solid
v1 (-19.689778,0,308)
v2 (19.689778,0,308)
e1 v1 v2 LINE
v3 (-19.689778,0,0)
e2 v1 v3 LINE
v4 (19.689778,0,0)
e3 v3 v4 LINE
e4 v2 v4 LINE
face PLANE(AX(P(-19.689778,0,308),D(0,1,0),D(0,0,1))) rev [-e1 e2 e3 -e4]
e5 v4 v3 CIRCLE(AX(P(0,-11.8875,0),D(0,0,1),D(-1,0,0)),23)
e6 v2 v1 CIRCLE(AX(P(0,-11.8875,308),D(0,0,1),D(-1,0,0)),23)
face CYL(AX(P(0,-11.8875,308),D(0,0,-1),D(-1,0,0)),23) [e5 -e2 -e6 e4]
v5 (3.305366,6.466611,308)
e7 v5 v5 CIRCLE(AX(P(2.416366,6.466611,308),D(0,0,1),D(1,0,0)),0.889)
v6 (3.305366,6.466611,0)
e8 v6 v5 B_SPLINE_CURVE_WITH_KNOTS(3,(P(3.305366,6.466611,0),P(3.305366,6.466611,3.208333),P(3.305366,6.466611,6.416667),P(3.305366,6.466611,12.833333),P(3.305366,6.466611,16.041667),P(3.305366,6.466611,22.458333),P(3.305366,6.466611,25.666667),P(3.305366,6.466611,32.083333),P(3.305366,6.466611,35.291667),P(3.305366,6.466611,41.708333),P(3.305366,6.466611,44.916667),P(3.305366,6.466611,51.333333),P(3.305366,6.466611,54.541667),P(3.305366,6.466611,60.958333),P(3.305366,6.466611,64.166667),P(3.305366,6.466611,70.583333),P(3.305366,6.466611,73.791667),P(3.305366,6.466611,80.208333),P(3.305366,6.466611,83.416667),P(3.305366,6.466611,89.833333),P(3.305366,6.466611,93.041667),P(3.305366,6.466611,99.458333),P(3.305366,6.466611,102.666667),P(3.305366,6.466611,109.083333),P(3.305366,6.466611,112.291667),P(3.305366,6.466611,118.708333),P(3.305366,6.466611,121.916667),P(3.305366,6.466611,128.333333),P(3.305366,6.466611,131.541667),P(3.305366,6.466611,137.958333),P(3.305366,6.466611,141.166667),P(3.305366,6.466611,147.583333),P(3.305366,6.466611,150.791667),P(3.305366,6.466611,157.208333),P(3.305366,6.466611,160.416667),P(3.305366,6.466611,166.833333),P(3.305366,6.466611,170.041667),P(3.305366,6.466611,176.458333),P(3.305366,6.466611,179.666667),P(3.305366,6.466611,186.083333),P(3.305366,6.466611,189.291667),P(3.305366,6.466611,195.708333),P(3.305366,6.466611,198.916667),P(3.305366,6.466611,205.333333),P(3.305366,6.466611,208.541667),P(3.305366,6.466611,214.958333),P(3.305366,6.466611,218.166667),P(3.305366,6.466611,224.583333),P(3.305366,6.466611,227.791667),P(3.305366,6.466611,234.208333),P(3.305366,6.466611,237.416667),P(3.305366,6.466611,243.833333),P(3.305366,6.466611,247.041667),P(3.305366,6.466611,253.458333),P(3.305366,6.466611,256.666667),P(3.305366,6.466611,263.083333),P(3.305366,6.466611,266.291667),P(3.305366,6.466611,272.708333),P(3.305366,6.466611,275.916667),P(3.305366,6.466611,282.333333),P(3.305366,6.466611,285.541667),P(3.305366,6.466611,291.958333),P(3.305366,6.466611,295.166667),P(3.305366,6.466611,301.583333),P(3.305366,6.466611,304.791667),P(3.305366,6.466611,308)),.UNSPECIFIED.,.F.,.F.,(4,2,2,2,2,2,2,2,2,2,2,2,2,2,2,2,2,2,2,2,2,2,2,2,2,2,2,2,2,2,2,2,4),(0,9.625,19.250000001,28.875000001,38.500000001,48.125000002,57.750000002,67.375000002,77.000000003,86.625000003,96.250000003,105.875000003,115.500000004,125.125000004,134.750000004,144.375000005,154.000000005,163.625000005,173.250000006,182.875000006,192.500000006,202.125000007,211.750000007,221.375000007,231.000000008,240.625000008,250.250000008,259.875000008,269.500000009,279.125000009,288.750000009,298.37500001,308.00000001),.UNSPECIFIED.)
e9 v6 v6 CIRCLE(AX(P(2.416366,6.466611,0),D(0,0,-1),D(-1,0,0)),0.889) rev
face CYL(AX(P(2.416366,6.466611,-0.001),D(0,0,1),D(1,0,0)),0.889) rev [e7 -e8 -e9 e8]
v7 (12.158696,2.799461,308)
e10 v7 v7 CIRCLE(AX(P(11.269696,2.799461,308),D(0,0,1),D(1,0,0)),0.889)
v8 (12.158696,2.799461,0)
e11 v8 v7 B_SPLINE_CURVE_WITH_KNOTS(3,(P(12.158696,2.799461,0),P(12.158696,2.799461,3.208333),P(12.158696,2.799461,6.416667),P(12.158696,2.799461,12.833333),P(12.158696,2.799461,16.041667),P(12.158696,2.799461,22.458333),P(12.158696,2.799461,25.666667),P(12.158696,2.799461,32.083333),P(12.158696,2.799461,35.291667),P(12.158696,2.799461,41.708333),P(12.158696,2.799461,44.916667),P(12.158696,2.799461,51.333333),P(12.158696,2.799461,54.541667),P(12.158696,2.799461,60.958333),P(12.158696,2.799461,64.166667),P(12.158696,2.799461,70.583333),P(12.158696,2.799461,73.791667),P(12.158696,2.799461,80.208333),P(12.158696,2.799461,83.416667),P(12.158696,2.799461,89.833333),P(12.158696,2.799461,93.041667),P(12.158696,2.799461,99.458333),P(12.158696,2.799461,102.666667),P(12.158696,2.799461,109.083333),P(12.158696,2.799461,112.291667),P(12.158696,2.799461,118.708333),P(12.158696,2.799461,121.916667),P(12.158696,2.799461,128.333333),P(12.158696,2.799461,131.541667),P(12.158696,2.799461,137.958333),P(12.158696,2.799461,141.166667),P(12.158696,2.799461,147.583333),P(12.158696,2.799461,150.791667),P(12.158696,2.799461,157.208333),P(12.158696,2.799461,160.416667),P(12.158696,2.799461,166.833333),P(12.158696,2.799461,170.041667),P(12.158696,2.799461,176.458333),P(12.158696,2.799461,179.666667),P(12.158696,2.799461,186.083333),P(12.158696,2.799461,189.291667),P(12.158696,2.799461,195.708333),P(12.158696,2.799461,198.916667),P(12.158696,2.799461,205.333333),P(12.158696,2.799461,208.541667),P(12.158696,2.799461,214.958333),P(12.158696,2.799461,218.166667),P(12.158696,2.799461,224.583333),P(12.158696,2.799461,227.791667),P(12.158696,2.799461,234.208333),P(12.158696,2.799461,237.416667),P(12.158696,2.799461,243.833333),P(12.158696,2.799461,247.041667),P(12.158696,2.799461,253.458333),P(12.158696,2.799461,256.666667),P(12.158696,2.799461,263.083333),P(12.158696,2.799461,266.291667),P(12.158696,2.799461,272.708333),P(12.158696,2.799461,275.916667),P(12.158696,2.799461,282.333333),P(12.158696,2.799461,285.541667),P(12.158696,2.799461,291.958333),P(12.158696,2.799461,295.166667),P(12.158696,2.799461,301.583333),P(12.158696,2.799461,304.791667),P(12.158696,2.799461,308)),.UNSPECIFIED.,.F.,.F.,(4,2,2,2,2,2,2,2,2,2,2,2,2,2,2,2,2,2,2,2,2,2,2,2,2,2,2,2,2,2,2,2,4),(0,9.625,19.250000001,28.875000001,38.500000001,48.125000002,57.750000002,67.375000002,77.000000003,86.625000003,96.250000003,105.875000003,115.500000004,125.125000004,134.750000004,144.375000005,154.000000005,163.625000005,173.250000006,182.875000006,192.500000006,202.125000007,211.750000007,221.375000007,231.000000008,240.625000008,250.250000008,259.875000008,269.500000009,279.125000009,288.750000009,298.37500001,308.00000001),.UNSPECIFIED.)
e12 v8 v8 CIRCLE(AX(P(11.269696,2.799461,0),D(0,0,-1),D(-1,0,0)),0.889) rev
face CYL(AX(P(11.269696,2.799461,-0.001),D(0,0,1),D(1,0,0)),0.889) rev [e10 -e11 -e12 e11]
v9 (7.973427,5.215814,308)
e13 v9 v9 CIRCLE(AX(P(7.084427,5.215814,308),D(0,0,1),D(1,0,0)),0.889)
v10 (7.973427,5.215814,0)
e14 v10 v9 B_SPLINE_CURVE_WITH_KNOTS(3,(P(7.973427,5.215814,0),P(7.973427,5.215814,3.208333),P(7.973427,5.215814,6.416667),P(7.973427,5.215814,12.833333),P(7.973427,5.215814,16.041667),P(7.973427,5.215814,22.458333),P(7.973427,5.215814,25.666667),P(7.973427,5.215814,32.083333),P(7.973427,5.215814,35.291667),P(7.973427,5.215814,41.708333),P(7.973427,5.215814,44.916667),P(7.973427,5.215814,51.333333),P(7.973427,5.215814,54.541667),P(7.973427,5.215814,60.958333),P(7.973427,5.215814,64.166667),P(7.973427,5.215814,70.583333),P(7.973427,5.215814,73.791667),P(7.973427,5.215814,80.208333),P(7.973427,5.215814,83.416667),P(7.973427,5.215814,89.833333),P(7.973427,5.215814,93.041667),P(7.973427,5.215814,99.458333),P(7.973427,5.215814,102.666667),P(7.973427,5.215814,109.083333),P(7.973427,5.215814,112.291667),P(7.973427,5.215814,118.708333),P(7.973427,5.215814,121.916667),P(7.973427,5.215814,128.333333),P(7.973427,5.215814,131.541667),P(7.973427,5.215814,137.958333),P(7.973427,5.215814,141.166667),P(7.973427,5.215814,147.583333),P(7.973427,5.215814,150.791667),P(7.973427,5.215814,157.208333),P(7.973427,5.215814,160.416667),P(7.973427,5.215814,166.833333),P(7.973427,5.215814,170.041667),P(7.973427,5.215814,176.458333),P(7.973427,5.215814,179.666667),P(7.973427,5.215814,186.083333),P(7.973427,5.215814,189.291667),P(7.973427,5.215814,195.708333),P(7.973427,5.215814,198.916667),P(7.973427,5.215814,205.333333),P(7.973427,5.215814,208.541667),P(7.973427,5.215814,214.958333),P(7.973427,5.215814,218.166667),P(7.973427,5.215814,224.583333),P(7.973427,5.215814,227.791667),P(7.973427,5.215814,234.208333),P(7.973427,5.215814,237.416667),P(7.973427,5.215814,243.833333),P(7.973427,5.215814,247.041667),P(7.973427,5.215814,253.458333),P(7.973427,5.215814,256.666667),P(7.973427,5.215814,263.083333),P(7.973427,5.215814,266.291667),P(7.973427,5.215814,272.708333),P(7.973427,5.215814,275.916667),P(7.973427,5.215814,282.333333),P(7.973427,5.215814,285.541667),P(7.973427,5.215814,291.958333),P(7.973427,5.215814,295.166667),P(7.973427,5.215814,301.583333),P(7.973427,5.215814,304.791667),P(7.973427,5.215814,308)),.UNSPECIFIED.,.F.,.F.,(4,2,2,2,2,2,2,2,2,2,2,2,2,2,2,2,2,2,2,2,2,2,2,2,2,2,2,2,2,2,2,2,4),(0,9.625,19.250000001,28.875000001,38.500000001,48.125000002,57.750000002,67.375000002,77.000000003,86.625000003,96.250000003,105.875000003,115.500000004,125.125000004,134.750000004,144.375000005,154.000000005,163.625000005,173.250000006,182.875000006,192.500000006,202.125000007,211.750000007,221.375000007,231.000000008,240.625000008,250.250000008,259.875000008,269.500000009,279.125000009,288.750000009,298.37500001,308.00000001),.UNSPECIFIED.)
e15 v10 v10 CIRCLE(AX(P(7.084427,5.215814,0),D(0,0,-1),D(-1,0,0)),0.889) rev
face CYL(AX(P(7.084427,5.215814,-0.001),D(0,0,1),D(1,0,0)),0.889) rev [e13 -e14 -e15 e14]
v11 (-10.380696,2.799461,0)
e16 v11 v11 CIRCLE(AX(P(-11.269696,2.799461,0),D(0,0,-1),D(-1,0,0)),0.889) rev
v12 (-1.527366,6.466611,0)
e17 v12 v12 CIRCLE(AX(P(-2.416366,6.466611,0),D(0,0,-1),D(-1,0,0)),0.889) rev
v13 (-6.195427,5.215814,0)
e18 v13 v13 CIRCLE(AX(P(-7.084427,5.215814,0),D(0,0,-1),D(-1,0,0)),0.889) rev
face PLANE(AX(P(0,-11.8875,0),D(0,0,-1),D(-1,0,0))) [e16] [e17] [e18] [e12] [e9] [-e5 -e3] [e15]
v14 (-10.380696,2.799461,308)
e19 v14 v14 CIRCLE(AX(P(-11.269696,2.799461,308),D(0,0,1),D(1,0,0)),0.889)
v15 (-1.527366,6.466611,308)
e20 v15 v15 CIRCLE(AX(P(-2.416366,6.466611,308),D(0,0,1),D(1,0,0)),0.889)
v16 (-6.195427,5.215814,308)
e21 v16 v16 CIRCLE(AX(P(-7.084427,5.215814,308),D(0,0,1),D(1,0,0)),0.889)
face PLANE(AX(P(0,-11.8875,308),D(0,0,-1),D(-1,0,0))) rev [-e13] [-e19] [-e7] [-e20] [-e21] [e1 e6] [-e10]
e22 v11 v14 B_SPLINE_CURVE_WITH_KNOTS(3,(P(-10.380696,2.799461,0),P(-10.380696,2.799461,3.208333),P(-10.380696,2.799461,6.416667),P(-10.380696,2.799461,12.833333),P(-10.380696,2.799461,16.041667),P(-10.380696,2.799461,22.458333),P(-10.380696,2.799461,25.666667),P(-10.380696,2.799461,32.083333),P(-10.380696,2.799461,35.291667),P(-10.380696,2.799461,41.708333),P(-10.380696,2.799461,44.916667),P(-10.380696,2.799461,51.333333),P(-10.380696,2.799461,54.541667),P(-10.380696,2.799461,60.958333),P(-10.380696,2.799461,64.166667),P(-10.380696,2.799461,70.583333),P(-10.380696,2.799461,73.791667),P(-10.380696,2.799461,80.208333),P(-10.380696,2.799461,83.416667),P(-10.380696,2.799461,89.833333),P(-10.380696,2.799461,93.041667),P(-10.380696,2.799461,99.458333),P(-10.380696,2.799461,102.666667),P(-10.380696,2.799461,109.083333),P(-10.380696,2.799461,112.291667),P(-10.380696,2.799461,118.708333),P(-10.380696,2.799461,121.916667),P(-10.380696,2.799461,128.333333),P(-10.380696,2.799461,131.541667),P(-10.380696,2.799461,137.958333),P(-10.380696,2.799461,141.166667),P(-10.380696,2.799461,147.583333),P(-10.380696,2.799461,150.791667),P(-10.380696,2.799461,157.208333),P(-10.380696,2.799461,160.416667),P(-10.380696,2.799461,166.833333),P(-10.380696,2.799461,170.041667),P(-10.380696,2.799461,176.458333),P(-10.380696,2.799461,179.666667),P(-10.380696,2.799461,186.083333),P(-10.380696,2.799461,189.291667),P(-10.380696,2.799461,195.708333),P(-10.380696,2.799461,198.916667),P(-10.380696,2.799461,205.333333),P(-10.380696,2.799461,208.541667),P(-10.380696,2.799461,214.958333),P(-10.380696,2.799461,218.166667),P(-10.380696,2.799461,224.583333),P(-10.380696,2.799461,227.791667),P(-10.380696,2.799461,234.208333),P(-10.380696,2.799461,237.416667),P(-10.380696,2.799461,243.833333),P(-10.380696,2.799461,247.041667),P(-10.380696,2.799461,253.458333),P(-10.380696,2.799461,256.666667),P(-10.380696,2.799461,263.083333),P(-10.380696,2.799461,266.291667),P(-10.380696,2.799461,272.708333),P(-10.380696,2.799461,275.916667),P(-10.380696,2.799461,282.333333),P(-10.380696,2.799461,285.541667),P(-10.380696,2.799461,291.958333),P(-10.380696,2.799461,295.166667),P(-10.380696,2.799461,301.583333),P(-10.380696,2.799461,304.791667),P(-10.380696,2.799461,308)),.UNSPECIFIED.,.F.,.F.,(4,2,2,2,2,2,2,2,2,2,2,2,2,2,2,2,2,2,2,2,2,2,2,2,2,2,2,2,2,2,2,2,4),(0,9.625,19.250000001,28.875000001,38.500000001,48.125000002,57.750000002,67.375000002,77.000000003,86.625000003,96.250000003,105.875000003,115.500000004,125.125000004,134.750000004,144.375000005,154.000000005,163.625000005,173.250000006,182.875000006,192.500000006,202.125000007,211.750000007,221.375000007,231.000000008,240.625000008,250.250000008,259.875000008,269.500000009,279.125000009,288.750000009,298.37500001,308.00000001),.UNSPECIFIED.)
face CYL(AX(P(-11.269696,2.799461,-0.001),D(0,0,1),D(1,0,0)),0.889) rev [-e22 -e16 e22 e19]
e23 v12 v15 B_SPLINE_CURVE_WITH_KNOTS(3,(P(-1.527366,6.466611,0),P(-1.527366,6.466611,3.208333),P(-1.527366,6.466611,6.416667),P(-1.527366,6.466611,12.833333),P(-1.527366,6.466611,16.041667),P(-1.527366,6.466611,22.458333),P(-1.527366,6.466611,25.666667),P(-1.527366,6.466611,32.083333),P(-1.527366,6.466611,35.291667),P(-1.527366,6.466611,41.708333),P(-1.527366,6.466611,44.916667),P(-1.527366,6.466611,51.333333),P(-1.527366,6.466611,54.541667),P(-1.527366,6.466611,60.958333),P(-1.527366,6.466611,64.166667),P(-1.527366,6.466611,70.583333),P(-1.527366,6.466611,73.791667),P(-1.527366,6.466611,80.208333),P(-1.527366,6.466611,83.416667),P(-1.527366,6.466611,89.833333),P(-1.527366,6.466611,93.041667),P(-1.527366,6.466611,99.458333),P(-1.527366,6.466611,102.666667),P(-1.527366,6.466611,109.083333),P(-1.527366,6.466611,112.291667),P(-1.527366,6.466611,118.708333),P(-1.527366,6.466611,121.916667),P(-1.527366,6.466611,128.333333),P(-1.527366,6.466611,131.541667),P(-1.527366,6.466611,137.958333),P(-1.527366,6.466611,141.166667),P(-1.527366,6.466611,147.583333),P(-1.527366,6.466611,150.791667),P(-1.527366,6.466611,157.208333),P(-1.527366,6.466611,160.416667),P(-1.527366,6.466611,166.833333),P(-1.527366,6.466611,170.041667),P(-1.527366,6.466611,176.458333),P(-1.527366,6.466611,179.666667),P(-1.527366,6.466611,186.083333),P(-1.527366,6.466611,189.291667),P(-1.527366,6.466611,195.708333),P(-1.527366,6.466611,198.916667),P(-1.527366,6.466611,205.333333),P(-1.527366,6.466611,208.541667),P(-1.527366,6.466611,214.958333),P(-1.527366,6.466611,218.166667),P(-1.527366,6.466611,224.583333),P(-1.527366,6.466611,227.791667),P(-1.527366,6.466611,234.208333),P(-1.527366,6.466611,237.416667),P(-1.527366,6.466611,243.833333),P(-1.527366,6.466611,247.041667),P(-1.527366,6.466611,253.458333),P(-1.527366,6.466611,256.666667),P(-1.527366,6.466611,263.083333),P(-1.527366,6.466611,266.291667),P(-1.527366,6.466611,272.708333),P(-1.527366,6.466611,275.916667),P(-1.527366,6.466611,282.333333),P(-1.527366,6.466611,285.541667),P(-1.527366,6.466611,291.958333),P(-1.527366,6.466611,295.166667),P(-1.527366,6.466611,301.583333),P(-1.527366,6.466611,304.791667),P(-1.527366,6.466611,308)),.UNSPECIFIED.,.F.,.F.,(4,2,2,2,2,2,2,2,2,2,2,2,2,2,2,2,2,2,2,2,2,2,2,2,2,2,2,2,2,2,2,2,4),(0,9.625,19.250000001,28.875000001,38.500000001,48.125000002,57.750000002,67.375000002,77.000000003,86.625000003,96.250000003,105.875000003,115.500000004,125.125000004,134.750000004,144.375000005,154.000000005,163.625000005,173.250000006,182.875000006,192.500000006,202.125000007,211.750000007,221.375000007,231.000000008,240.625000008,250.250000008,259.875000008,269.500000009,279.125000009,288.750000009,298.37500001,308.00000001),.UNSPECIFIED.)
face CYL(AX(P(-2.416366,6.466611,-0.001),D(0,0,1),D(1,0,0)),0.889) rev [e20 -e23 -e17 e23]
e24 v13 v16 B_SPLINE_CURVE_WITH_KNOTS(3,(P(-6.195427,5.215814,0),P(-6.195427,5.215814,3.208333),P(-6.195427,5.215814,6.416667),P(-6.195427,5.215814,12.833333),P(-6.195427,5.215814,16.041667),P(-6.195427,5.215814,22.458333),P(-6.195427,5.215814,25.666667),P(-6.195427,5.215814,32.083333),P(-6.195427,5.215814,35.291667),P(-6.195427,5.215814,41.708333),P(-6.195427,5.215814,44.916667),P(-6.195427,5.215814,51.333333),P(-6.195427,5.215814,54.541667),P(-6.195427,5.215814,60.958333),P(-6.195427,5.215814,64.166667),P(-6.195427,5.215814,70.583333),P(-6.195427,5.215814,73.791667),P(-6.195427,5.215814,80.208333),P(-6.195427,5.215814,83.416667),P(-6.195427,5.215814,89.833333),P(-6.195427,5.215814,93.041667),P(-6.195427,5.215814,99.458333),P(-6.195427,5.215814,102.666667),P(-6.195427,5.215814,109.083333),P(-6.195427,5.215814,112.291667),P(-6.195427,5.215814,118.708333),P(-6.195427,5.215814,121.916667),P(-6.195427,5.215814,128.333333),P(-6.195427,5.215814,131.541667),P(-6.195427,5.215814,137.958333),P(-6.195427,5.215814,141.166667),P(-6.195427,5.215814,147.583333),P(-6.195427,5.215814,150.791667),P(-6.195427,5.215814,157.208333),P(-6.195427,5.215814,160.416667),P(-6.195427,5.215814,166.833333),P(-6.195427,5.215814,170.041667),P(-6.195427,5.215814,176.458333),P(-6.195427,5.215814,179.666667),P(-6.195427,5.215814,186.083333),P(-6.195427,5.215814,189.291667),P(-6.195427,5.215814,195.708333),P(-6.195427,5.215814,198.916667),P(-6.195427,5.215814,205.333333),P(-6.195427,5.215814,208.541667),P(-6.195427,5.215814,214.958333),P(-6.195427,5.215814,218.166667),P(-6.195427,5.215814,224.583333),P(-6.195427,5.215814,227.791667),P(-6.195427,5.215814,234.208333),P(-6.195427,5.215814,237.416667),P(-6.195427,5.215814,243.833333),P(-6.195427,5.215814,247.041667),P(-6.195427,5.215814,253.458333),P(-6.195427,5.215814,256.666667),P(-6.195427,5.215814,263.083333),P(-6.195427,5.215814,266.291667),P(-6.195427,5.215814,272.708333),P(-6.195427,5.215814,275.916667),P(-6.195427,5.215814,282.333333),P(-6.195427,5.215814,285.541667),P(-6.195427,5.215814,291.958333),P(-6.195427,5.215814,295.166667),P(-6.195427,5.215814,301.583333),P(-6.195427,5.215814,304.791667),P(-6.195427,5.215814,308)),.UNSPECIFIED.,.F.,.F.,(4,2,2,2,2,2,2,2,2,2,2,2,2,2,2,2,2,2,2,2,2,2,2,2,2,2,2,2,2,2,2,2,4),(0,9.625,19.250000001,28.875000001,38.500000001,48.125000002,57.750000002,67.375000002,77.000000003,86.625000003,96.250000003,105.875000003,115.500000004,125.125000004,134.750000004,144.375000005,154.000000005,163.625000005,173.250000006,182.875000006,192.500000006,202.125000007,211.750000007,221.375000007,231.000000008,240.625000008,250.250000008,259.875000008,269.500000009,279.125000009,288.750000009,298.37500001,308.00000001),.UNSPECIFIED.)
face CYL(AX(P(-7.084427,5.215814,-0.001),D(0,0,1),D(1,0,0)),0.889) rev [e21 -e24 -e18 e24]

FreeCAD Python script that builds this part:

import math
import FreeCAD as App
import Part
import Sketcher

V = App.Vector

doc = App.newDocument("Part")
body = doc.addObject("PartDesign::Body", "Body")

sketch1 = body.newObject("Sketcher::SketchObject", "Sketch")
sketch1.AttachmentSupport = (doc.getObject("XY_Plane"), [""])
sketch1.MapMode = "FlatFace"
sketch1.addGeometry(Part.LineSegment(V(-20, 0, 0), V(20, 0, 0)), False)
sketch1.addGeometry(Part.ArcOfCircle(Part.Circle(V(0, -12, 0), V(0, 0, 1), 23), math.radians(31), math.radians(149)), False)
sketch1.addConstraint(Sketcher.Constraint("Coincident", 0, 1, 1, 2))
sketch1.addConstraint(Sketcher.Constraint("Coincident", 1, 1, 0, 2))
sketch1.addConstraint(Sketcher.Constraint("Horizontal", 0))
sketch1.addConstraint(Sketcher.Constraint("Symmetric", 0, 1, 1, 1, -1, 1))
sketch1.addConstraint(Sketcher.Constraint("Radius", 1, 23.0))
sketch1.addConstraint(Sketcher.Constraint("DistanceY", 1, 3, -1, 1, 11.8875))
pad1 = body.newObject("PartDesign::Pad", "Pad")
pad1.Profile = sketch1
pad1.Length = 308

sketch2 = body.newObject("Sketcher::SketchObject", "Sketch001")
sketch2.AttachmentSupport = (doc.getObject("XY_Plane"), [""])
sketch2.MapMode = "FlatFace"
sketch2.AttachmentOffset = App.Placement(V(0, 0, 308), App.Rotation())
sketch2.addGeometry(Part.Circle(V(-11.3, 2.8, 0), V(0, 0, 1), 0.9), False)
sketch2.addConstraint(Sketcher.Constraint("Diameter", 0, 1.778))
sketch2.addConstraint(Sketcher.Constraint("DistanceY", -1, 1, 0, 3, 2.799461))
sketch2.addConstraint(Sketcher.Constraint("DistanceX", 0, 3, -1, 1, 11.269696))
pocket1 = body.newObject("PartDesign::Pocket", "Pocket")
pocket1.Profile = sketch2
pocket1.Type = "UpToFirst"

sketch3 = body.newObject("Sketcher::SketchObject", "Sketch002")
sketch3.AttachmentSupport = (doc.getObject("XY_Plane"), [""])
sketch3.MapMode = "FlatFace"
sketch3.AttachmentOffset = App.Placement(V(0, 0, 308), App.Rotation())
sketch3.addGeometry(Part.Circle(V(-7.1, 5.2, 0), V(0, 0, 1), 0.9), False)
sketch3.addConstraint(Sketcher.Constraint("Diameter", 0, 1.778))
sketch3.addConstraint(Sketcher.Constraint("DistanceX", 0, 3, -1, 1, 7.084427))
sketch3.addConstraint(Sketcher.Constraint("DistanceY", -1, 1, 0, 3, 5.215814))
pocket2 = body.newObject("PartDesign::Pocket", "Pocket001")
pocket2.Profile = sketch3
pocket2.Type = "UpToFirst"

sketch4 = body.newObject("Sketcher::SketchObject", "Sketch003")
sketch4.AttachmentSupport = (doc.getObject("XY_Plane"), [""])
sketch4.MapMode = "FlatFace"
sketch4.AttachmentOffset = App.Placement(V(0, 0, 308), App.Rotation())
sketch4.addGeometry(Part.Circle(V(-2.4, 6.5, 0), V(0, 0, 1), 0.9), False)
sketch4.addConstraint(Sketcher.Constraint("Diameter", 0, 1.778))
sketch4.addConstraint(Sketcher.Constraint("DistanceY", -1, 1, 0, 3, 6.466611))
sketch4.addConstraint(Sketcher.Constraint("DistanceX", 0, 3, -1, 1, 2.416366))
pocket3 = body.newObject("PartDesign::Pocket", "Pocket002")
pocket3.Profile = sketch4
pocket3.Type = "UpToFirst"

sketch5 = body.newObject("Sketcher::SketchObject", "Sketch004")
sketch5.AttachmentSupport = (doc.getObject("XY_Plane"), [""])
sketch5.MapMode = "FlatFace"
sketch5.AttachmentOffset = App.Placement(V(0, 0, 308), App.Rotation())
sketch5.addGeometry(Part.Circle(V(2.4, 6.5, 0), V(0, 0, 1), 0.9), False)
sketch5.addConstraint(Sketcher.Constraint("Diameter", 0, 1.778))
sketch5.addConstraint(Sketcher.Constraint("DistanceY", -1, 1, 0, 3, 6.466611))
sketch5.addConstraint(Sketcher.Constraint("DistanceX", -1, 1, 0, 3, 2.416366))
pocket4 = body.newObject("PartDesign::Pocket", "Pocket003")
pocket4.Profile = sketch5
pocket4.Type = "UpToFirst"

sketch6 = body.newObject("Sketcher::SketchObject", "Sketch005")
sketch6.AttachmentSupport = (doc.getObject("XY_Plane"), [""])
sketch6.MapMode = "FlatFace"
sketch6.AttachmentOffset = App.Placement(V(0, 0, 308), App.Rotation())
sketch6.addGeometry(Part.Circle(V(7.1, 5.2, 0), V(0, 0, 1), 0.9), False)
sketch6.addConstraint(Sketcher.Constraint("Diameter", 0, 1.778))
sketch6.addConstraint(Sketcher.Constraint("DistanceX", -1, 1, 0, 3, 7.084427))
sketch6.addConstraint(Sketcher.Constraint("DistanceY", -1, 1, 0, 3, 5.215814))
pocket5 = body.newObject("PartDesign::Pocket", "Pocket004")
pocket5.Profile = sketch6
pocket5.Type = "UpToFirst"

sketch7 = body.newObject("Sketcher::SketchObject", "Sketch006")
sketch7.AttachmentSupport = (doc.getObject("XY_Plane"), [""])
sketch7.MapMode = "FlatFace"
sketch7.AttachmentOffset = App.Placement(V(0, 0, 308), App.Rotation())
sketch7.addGeometry(Part.Circle(V(11.3, 2.8, 0), V(0, 0, 1), 0.9), False)
sketch7.addConstraint(Sketcher.Constraint("Diameter", 0, 1.778))
sketch7.addConstraint(Sketcher.Constraint("DistanceY", -1, 1, 0, 3, 2.799461))
sketch7.addConstraint(Sketcher.Constraint("DistanceX", -1, 1, 0, 3, 11.269696))
pocket6 = body.newObject("PartDesign::Pocket", "Pocket005")
pocket6.Profile = sketch7
pocket6.Type = "UpToFirst"

doc.recompute()
